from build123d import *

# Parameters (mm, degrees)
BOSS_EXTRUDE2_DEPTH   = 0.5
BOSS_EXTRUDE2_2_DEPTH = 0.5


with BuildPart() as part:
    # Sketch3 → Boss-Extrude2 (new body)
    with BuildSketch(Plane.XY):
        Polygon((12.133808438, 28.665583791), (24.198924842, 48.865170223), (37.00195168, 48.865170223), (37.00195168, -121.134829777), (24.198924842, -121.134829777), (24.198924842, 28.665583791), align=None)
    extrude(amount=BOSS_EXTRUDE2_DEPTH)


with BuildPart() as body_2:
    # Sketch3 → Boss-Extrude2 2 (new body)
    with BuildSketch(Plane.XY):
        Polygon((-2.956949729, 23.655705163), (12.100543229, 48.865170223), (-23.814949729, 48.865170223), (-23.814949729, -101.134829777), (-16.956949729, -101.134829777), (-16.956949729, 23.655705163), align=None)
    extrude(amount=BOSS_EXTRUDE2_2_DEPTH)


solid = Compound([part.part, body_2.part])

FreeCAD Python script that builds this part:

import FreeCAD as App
import Part
import Sketcher

V = App.Vector
Q = App.Units.Quantity

doc = App.newDocument("Part")
body = doc.addObject("PartDesign::Body", "Body")

# Sketch on XY plane
sketch1 = doc.addObject("Sketcher::SketchObject", "Sketch")
body.addObject(sketch1)
sketch1.AttachmentSupport = (doc.XY_Plane, [""])
sketch1.MapMode = "FlatFace"
sketch1.addGeometry(Part.LineSegment(V(24.198925, 48.86517, 0), V(12.133808, 28.665584, 0)), False)
sketch1.addGeometry(Part.LineSegment(V(12.133808, 28.665584, 0), V(24.198925, 28.665584, 0)), False)
sketch1.addGeometry(Part.LineSegment(V(24.198925, 28.665584, 0), V(24.198925, -121.13483, 0)), False)
sketch1.addGeometry(Part.LineSegment(V(24.198925, -121.13483, 0), V(37.001952, -121.13483, 0)), False)
sketch1.addGeometry(Part.LineSegment(V(37.001952, -121.13483, 0), V(37.001952, 48.86517, 0)), False)
sketch1.addGeometry(Part.LineSegment(V(37.001952, 48.86517, 0), V(24.198925, 48.86517, 0)), False)
sketch1.addConstraint(Sketcher.Constraint("Coincident", 0, 2, 1, 1))
sketch1.addConstraint(Sketcher.Constraint("Coincident", 1, 2, 2, 1))
sketch1.addConstraint(Sketcher.Constraint("Coincident", 2, 2, 3, 1))
sketch1.addConstraint(Sketcher.Constraint("Coincident", 3, 2, 4, 1))
sketch1.addConstraint(Sketcher.Constraint("Coincident", 4, 2, 5, 1))
sketch1.addConstraint(Sketcher.Constraint("Coincident", 5, 2, 0, 1))
sketch1.addConstraint(Sketcher.Constraint("Horizontal", 1))
sketch1.addConstraint(Sketcher.Constraint("Vertical", 2))
sketch1.addConstraint(Sketcher.Constraint("Horizontal", 3))
sketch1.addConstraint(Sketcher.Constraint("Vertical", 4))
sketch1.addConstraint(Sketcher.Constraint("Horizontal", 5))
sketch1.addConstraint(Sketcher.Constraint("Vertical", 2, 2, 5, 2))
sketch1.addConstraint(Sketcher.Constraint("DistanceY", 4, 1, 4, 2, Q("170 mm")))
sketch1.addConstraint(Sketcher.Constraint("Distance", 0, Q("23.5285 mm")))
sketch1.addConstraint(Sketcher.Constraint("DistanceX", 1, 1, 1, 2, Q("12.065116 mm")))
sketch1.addConstraint(Sketcher.Constraint("DistanceX", 3, 1, 3, 2, Q("12.803027 mm")))
sketch1.addConstraint(Sketcher.Constraint("DistanceX", -1, 1, 0, 2, Q("12.133808 mm")))
sketch1.addConstraint(Sketcher.Constraint("DistanceY", 2, 2, -1, 1, Q("121.13483 mm")))
pad1 = doc.addObject("PartDesign::Pad", "Pad")
body.addObject(pad1)
pad1.Profile = sketch1
pad1.Length = 0.5
body2 = doc.addObject("PartDesign::Body", "Body001")

# Sketch on XY plane
sketch2 = doc.addObject("Sketcher::SketchObject", "Sketch001")
body2.addObject(sketch2)
sketch2.AttachmentSupport = (doc.getObject("XY_Plane001"), [""])
sketch2.MapMode = "FlatFace"
sketch2.addGeometry(Part.LineSegment(V(-2.95695, 23.655705, 0), V(12.100543, 48.86517, 0)), False)
sketch2.addGeometry(Part.LineSegment(V(12.100543, 48.86517, 0), V(-23.81495, 48.86517, 0)), False)
sketch2.addGeometry(Part.LineSegment(V(-23.81495, 48.86517, 0), V(-23.81495, -101.13483, 0)), False)
sketch2.addGeometry(Part.LineSegment(V(-23.81495, -101.13483, 0), V(-16.95695, -101.13483, 0)), False)
sketch2.addGeometry(Part.LineSegment(V(-16.95695, -101.13483, 0), V(-16.95695, 23.655705, 0)), False)
sketch2.addGeometry(Part.LineSegment(V(-16.95695, 23.655705, 0), V(-2.95695, 23.655705, 0)), False)
sketch2.addConstraint(Sketcher.Constraint("Coincident", 0, 2, 1, 1))
sketch2.addConstraint(Sketcher.Constraint("Coincident", 1, 2, 2, 1))
sketch2.addConstraint(Sketcher.Constraint("Coincident", 2, 2, 3, 1))
sketch2.addConstraint(Sketcher.Constraint("Coincident", 3, 2, 4, 1))
sketch2.addConstraint(Sketcher.Constraint("Coincident", 4, 2, 5, 1))
sketch2.addConstraint(Sketcher.Constraint("Coincident", 5, 2, 0, 1))
sketch2.addConstraint(Sketcher.Constraint("Horizontal", 1))
sketch2.addConstraint(Sketcher.Constraint("Vertical", 2))
sketch2.addConstraint(Sketcher.Constraint("Horizontal", 3))
sketch2.addConstraint(Sketcher.Constraint("Vertical", 4))
sketch2.addConstraint(Sketcher.Constraint("Horizontal", 5))
sketch2.addConstraint(Sketcher.Constraint("DistanceX", 5, 1, 5, 2, Q("14 mm")))
sketch2.addConstraint(Sketcher.Constraint("DistanceY", 2, 2, 2, 1, Q("150 mm")))
sketch2.addConstraint(Sketcher.Constraint("DistanceX", 3, 1, 3, 2, Q("6.858 mm")))
sketch2.addConstraint(Sketcher.Constraint("DistanceX", 1, 2, 1, 1, Q("35.915493 mm")))
sketch2.addConstraint(Sketcher.Constraint("DistanceY", 4, 1, 4, 2, Q("124.790535 mm")))
sketch2.addConstraint(Sketcher.Constraint("DistanceY", -1, 1, 0, 2, Q("48.86517 mm")))
sketch2.addConstraint(Sketcher.Constraint("DistanceX", 1, 2, -1, 1, Q("23.81495 mm")))
pad2 = doc.addObject("PartDesign::Pad", "Pad001")
body2.addObject(pad2)
pad2.Profile = sketch2
pad2.Length = 0.5

doc.recompute()
